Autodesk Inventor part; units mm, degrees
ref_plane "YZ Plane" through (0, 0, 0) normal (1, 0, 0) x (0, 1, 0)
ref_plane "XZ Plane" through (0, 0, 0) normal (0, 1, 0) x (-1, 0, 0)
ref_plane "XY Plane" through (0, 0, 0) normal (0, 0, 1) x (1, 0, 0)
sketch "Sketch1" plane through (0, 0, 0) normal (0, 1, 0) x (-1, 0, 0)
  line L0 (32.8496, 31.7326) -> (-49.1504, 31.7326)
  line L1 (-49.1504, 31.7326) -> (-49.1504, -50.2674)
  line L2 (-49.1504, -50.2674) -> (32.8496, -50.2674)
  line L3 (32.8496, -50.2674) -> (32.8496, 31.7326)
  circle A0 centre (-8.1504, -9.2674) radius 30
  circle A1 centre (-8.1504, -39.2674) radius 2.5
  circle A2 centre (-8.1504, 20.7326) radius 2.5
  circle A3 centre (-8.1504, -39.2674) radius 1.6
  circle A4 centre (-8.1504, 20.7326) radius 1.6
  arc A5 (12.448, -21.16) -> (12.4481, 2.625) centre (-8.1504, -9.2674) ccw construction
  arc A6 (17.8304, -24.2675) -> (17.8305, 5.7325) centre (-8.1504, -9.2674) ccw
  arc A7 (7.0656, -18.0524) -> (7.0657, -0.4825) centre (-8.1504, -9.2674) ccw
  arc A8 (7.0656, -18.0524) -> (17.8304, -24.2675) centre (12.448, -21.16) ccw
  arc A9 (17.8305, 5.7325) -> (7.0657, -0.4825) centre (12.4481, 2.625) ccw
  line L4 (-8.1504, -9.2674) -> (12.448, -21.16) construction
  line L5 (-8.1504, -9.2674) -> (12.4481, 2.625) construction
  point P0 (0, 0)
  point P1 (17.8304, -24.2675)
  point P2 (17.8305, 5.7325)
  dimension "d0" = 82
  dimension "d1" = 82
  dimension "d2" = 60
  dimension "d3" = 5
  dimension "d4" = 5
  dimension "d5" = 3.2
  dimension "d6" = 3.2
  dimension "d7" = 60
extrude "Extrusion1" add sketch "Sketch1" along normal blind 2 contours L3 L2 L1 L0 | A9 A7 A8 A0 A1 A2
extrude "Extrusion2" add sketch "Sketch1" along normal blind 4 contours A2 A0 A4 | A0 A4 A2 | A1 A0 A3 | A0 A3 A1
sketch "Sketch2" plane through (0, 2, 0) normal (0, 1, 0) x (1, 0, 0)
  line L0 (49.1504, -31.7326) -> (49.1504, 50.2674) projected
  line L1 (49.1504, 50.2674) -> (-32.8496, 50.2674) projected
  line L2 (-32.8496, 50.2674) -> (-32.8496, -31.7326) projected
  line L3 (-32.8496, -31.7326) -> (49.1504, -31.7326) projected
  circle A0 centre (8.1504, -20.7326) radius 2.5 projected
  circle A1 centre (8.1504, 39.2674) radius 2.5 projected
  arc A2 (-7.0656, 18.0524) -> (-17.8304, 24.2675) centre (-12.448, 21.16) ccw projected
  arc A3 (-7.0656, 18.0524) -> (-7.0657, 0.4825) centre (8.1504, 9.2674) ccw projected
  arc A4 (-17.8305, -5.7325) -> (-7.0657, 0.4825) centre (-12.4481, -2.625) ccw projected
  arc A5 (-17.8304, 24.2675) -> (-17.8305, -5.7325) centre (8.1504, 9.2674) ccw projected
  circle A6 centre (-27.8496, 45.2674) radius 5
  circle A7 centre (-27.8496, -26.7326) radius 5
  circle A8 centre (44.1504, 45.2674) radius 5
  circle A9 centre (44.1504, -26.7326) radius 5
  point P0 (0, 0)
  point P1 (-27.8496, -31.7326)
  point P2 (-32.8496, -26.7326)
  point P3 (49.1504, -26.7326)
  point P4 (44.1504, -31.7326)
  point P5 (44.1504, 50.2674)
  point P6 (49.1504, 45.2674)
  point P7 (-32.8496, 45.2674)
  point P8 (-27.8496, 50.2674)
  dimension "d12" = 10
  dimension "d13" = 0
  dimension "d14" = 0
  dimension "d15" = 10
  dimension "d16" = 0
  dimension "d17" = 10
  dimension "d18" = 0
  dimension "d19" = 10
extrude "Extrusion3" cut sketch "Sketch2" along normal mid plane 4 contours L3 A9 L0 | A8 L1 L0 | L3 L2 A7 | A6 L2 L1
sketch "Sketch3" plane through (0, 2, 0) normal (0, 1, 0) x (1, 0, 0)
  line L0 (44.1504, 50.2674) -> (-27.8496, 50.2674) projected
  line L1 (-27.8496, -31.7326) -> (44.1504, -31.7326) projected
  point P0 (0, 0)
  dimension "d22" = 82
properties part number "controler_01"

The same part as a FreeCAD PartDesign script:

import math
import FreeCAD as App
import Part
import Sketcher

V = App.Vector

doc = App.newDocument("Part")
params = doc.addObject("Spreadsheet::Sheet", "Params")
for row, (alias, value) in enumerate([
    ("sketch1_diameter", "5 mm"),
    ("sketch1_radius", "30 mm"),
    ("sketch1_width", "82 mm"),
    ("sketch1_radius2", "17.57 mm"),
    ("pad1_length", "2 mm"),
    ("sketch2_diameter", "5 mm"),
    ("sketch2_diameter2", "3.2 mm"),
    ("pad2_length", "4 mm"),
    ("sketch3_radius", "5 mm"),
    ("pocket1_length", "4 mm"),
], start=1):
    params.set(f"A{row}", alias)
    params.set(f"B{row}", "=" + value)
    params.setAlias(f"B{row}", alias)

body = doc.addObject("PartDesign::Body", "Body")

# Sketch on XZ plane
sketch1 = body.newObject("Sketcher::SketchObject", "Sketch")
sketch1.AttachmentSupport = (doc.getObject("XZ_Plane"), [""])
sketch1.MapMode = "FlatFace"
sketch1.addGeometry([
    Part.LineSegment(V(-32.8, -50.3, 0), V(-32.8, 31.7, 0)),  # 0
    Part.LineSegment(V(-32.8, 31.7, 0), V(49.2, 31.7, 0)),  # 1
    Part.LineSegment(V(49.2, 31.7, 0), V(49.2, -50.3, 0)),  # 2
    Part.LineSegment(V(49.2, -50.3, 0), V(-32.8, -50.3, 0)),  # 3
    Part.ArcOfCircle(Part.Circle(V(8.2, -9.3, 0), V(0, 0, 1), 30), math.radians(150), math.radians(210)),  # 4
    Part.ArcOfCircle(Part.Circle(V(-12.4, -21.2, 0), V(0, 0, 1), 6.2), math.radians(-150), math.radians(30)),  # 5
    Part.ArcOfCircle(Part.Circle(V(8.2, -9.3, 0), V(0, 0, 1), 17.6), math.radians(150), math.radians(210)),  # 6
    Part.ArcOfCircle(Part.Circle(V(-12.4, 2.6, 0), V(0, 0, 1), 6.2), math.radians(-30), math.radians(150)),  # 7
    Part.Circle(V(8.2, 20.7, 0), V(0, 0, 1), 2.5),  # 8
    Part.Circle(V(8.2, -39.3, 0), V(0, 0, 1), 2.5),  # 9
], False)
sketch1.addConstraint([
    Sketcher.Constraint("Coincident", 0, 2, 1, 1),
    Sketcher.Constraint("Coincident", 1, 2, 2, 1),
    Sketcher.Constraint("Coincident", 2, 2, 3, 1),
    Sketcher.Constraint("Coincident", 3, 2, 0, 1),
    Sketcher.Constraint("Tangent", 4, 2, 5, 1),
    Sketcher.Constraint("Tangent", 5, 2, 6, 2),
    Sketcher.Constraint("Tangent", 6, 1, 7, 1),
    Sketcher.Constraint("Tangent", 7, 2, 4, 1),
    Sketcher.Constraint("Vertical", 0),
    Sketcher.Constraint("Horizontal", 1),
    Sketcher.Constraint("Vertical", 2),
    Sketcher.Constraint("Horizontal", 3),
    Sketcher.Constraint("Coincident", 6, 3, 4, 3),
    Sketcher.Constraint("Equal", 8, 9),
    Sketcher.Constraint("Vertical", 5, 3, 7, 3),
    Sketcher.Constraint("Vertical", 6, 3, 8, 3),
    Sketcher.Constraint("Vertical", 8, 3, 9, 3),
    Sketcher.Constraint("Equal", 3, 0),
    Sketcher.Constraint("Diameter", 8, 5.0),
    Sketcher.Constraint("Radius", 4, 30.0),
    Sketcher.Constraint("DistanceX", 1, 1, 1, 2, 82.0),
    Sketcher.Constraint("DistanceY", 9, 3, 8, 3, 60.0),
    Sketcher.Constraint("Radius", 6, 17.57),
    Sketcher.Constraint("DistanceY", 4, 3, 8, 3, 30.0),
    Sketcher.Constraint("DistanceX", 0, 2, 8, 3, 41.0),
    Sketcher.Constraint("DistanceY", 8, 3, 0, 2, 11.0),
    Sketcher.Constraint("DistanceY", 9, 3, 4, 2, 15.0),
    Sketcher.Constraint("DistanceY", 5, 3, -1, 1, 21.16),
    Sketcher.Constraint("DistanceX", 5, 3, -1, 1, 12.448),
])
sketch1.setExpression("Constraints[18]", "Params.sketch1_diameter")
sketch1.setExpression("Constraints[19]", "Params.sketch1_radius")
sketch1.setExpression("Constraints[20]", "Params.sketch1_width")
sketch1.setExpression("Constraints[22]", "Params.sketch1_radius2")
pad1 = body.newObject("PartDesign::Pad", "Pad")
pad1.Profile = sketch1
pad1.setExpression("Length", "Params.pad1_length")
pad1.Reversed = True

# Sketch on XZ plane
sketch2 = body.newObject("Sketcher::SketchObject", "Sketch001")
sketch2.AttachmentSupport = (doc.getObject("XZ_Plane"), [""])
sketch2.MapMode = "FlatFace"
sketch2.addGeometry([
    Part.Circle(V(8.2, 20.7, 0), V(0, 0, 1), 2.5),
    Part.Circle(V(8.2, 20.7, 0), V(0, 0, 1), 1.6),
    Part.Circle(V(8.2, -39.3, 0), V(0, 0, 1), 2.5),
    Part.Circle(V(8.2, -39.3, 0), V(0, 0, 1), 1.6),
], False)
sketch2.addConstraint([
    Sketcher.Constraint("Coincident", 1, 3, 0, 3),
    Sketcher.Constraint("Coincident", 3, 3, 2, 3),
    Sketcher.Constraint("Equal", 0, 2),
    Sketcher.Constraint("Equal", 1, 3),
    Sketcher.Constraint("Vertical", 1, 3, 2, 3),
    Sketcher.Constraint("Diameter", 0, 5.0),
    Sketcher.Constraint("Diameter", 1, 3.2),
    Sketcher.Constraint("DistanceY", 2, 3, 0, 3, 60.0),
    Sketcher.Constraint("DistanceX", -1, 1, 0, 3, 8.1504),
    Sketcher.Constraint("DistanceY", -1, 1, 0, 3, 20.7326),
])
sketch2.setExpression("Constraints[5]", "Params.sketch2_diameter")
sketch2.setExpression("Constraints[6]", "Params.sketch2_diameter2")
pad2 = body.newObject("PartDesign::Pad", "Pad001")
pad2.Profile = sketch2
pad2.setExpression("Length", "Params.pad2_length")
pad2.Reversed = True

# Sketch on XZ plane
sketch3 = body.newObject("Sketcher::SketchObject", "Sketch002")
sketch3.AttachmentSupport = (doc.getObject("XZ_Plane"), [""])
sketch3.MapMode = "FlatFace"
sketch3.AttachmentOffset = App.Placement(V(0, 0, -2), App.Rotation())
sketch3.addGeometry([
    Part.LineSegment(V(44, 32, 0), V(49, 32, 0)),  # 0
    Part.LineSegment(V(49, 32, 0), V(49, 27, 0)),  # 1
    Part.ArcOfCircle(Part.Circle(V(44, 27, 0), V(0, 0, 1), 5), math.radians(0), math.radians(90)),  # 2
    Part.ArcOfCircle(Part.Circle(V(44, -45, 0), V(0, 0, 1), 5), math.radians(-90), math.radians(0)),  # 3
    Part.LineSegment(V(49, -45, 0), V(49, -50, 0)),  # 4
    Part.LineSegment(V(49, -50, 0), V(44, -50, 0)),  # 5
    Part.LineSegment(V(-33, 32, 0), V(-28, 32, 0)),  # 6
    Part.ArcOfCircle(Part.Circle(V(-28, 27, 0), V(0, 0, 1), 5), math.radians(90), math.radians(180)),  # 7
    Part.LineSegment(V(-33, 27, 0), V(-33, 32, 0)),  # 8
    Part.ArcOfCircle(Part.Circle(V(-28, -45, 0), V(0, 0, 1), 5), math.radians(180), math.radians(270)),  # 9
    Part.LineSegment(V(-28, -50, 0), V(-33, -50, 0)),  # 10
    Part.LineSegment(V(-33, -50, 0), V(-33, -45, 0)),  # 11
], False)
sketch3.addConstraint([
    Sketcher.Constraint("Coincident", 0, 2, 1, 1),
    Sketcher.Constraint("Tangent", 1, 2, 2, 1),
    Sketcher.Constraint("Tangent", 2, 2, 0, 1),
    Sketcher.Constraint("Tangent", 3, 2, 4, 1),
    Sketcher.Constraint("Coincident", 4, 2, 5, 1),
    Sketcher.Constraint("Tangent", 5, 2, 3, 1),
    Sketcher.Constraint("Tangent", 6, 2, 7, 1),
    Sketcher.Constraint("Tangent", 7, 2, 8, 1),
    Sketcher.Constraint("Coincident", 8, 2, 6, 1),
    Sketcher.Constraint("Tangent", 9, 2, 10, 1),
    Sketcher.Constraint("Coincident", 10, 2, 11, 1),
    Sketcher.Constraint("Tangent", 11, 2, 9, 1),
    Sketcher.Constraint("Horizontal", 0),
    Sketcher.Constraint("Vertical", 1),
    Sketcher.Constraint("Vertical", 4),
    Sketcher.Constraint("Horizontal", 5),
    Sketcher.Constraint("Horizontal", 6),
    Sketcher.Constraint("Vertical", 8),
    Sketcher.Constraint("Horizontal", 10),
    Sketcher.Constraint("Vertical", 11),
    Sketcher.Constraint("Equal", 2, 3),
    Sketcher.Constraint("Equal", 3, 7),
    Sketcher.Constraint("Equal", 7, 9),
    Sketcher.Constraint("Horizontal", 2, 3, 7, 3),
    Sketcher.Constraint("Horizontal", 3, 3, 9, 3),
    Sketcher.Constraint("Vertical", 2, 3, 3, 3),
    Sketcher.Constraint("Vertical", 7, 3, 9, 3),
    Sketcher.Constraint("Radius", 2, 5.0),
    Sketcher.Constraint("DistanceY", 3, 3, 2, 3, 72.0),
    Sketcher.Constraint("DistanceX", 7, 3, 2, 3, 72.0),
    Sketcher.Constraint("DistanceX", -1, 1, 2, 3, 44.1504),
    Sketcher.Constraint("DistanceY", -1, 1, 2, 3, 26.7326),
])
sketch3.setExpression("Constraints[27]", "Params.sketch3_radius")
pocket1 = body.newObject("PartDesign::Pocket", "Pocket")
pocket1.Profile = sketch3
pocket1.setExpression("Length", "Params.pocket1_length")
pocket1.Midplane = True

doc.recompute()
